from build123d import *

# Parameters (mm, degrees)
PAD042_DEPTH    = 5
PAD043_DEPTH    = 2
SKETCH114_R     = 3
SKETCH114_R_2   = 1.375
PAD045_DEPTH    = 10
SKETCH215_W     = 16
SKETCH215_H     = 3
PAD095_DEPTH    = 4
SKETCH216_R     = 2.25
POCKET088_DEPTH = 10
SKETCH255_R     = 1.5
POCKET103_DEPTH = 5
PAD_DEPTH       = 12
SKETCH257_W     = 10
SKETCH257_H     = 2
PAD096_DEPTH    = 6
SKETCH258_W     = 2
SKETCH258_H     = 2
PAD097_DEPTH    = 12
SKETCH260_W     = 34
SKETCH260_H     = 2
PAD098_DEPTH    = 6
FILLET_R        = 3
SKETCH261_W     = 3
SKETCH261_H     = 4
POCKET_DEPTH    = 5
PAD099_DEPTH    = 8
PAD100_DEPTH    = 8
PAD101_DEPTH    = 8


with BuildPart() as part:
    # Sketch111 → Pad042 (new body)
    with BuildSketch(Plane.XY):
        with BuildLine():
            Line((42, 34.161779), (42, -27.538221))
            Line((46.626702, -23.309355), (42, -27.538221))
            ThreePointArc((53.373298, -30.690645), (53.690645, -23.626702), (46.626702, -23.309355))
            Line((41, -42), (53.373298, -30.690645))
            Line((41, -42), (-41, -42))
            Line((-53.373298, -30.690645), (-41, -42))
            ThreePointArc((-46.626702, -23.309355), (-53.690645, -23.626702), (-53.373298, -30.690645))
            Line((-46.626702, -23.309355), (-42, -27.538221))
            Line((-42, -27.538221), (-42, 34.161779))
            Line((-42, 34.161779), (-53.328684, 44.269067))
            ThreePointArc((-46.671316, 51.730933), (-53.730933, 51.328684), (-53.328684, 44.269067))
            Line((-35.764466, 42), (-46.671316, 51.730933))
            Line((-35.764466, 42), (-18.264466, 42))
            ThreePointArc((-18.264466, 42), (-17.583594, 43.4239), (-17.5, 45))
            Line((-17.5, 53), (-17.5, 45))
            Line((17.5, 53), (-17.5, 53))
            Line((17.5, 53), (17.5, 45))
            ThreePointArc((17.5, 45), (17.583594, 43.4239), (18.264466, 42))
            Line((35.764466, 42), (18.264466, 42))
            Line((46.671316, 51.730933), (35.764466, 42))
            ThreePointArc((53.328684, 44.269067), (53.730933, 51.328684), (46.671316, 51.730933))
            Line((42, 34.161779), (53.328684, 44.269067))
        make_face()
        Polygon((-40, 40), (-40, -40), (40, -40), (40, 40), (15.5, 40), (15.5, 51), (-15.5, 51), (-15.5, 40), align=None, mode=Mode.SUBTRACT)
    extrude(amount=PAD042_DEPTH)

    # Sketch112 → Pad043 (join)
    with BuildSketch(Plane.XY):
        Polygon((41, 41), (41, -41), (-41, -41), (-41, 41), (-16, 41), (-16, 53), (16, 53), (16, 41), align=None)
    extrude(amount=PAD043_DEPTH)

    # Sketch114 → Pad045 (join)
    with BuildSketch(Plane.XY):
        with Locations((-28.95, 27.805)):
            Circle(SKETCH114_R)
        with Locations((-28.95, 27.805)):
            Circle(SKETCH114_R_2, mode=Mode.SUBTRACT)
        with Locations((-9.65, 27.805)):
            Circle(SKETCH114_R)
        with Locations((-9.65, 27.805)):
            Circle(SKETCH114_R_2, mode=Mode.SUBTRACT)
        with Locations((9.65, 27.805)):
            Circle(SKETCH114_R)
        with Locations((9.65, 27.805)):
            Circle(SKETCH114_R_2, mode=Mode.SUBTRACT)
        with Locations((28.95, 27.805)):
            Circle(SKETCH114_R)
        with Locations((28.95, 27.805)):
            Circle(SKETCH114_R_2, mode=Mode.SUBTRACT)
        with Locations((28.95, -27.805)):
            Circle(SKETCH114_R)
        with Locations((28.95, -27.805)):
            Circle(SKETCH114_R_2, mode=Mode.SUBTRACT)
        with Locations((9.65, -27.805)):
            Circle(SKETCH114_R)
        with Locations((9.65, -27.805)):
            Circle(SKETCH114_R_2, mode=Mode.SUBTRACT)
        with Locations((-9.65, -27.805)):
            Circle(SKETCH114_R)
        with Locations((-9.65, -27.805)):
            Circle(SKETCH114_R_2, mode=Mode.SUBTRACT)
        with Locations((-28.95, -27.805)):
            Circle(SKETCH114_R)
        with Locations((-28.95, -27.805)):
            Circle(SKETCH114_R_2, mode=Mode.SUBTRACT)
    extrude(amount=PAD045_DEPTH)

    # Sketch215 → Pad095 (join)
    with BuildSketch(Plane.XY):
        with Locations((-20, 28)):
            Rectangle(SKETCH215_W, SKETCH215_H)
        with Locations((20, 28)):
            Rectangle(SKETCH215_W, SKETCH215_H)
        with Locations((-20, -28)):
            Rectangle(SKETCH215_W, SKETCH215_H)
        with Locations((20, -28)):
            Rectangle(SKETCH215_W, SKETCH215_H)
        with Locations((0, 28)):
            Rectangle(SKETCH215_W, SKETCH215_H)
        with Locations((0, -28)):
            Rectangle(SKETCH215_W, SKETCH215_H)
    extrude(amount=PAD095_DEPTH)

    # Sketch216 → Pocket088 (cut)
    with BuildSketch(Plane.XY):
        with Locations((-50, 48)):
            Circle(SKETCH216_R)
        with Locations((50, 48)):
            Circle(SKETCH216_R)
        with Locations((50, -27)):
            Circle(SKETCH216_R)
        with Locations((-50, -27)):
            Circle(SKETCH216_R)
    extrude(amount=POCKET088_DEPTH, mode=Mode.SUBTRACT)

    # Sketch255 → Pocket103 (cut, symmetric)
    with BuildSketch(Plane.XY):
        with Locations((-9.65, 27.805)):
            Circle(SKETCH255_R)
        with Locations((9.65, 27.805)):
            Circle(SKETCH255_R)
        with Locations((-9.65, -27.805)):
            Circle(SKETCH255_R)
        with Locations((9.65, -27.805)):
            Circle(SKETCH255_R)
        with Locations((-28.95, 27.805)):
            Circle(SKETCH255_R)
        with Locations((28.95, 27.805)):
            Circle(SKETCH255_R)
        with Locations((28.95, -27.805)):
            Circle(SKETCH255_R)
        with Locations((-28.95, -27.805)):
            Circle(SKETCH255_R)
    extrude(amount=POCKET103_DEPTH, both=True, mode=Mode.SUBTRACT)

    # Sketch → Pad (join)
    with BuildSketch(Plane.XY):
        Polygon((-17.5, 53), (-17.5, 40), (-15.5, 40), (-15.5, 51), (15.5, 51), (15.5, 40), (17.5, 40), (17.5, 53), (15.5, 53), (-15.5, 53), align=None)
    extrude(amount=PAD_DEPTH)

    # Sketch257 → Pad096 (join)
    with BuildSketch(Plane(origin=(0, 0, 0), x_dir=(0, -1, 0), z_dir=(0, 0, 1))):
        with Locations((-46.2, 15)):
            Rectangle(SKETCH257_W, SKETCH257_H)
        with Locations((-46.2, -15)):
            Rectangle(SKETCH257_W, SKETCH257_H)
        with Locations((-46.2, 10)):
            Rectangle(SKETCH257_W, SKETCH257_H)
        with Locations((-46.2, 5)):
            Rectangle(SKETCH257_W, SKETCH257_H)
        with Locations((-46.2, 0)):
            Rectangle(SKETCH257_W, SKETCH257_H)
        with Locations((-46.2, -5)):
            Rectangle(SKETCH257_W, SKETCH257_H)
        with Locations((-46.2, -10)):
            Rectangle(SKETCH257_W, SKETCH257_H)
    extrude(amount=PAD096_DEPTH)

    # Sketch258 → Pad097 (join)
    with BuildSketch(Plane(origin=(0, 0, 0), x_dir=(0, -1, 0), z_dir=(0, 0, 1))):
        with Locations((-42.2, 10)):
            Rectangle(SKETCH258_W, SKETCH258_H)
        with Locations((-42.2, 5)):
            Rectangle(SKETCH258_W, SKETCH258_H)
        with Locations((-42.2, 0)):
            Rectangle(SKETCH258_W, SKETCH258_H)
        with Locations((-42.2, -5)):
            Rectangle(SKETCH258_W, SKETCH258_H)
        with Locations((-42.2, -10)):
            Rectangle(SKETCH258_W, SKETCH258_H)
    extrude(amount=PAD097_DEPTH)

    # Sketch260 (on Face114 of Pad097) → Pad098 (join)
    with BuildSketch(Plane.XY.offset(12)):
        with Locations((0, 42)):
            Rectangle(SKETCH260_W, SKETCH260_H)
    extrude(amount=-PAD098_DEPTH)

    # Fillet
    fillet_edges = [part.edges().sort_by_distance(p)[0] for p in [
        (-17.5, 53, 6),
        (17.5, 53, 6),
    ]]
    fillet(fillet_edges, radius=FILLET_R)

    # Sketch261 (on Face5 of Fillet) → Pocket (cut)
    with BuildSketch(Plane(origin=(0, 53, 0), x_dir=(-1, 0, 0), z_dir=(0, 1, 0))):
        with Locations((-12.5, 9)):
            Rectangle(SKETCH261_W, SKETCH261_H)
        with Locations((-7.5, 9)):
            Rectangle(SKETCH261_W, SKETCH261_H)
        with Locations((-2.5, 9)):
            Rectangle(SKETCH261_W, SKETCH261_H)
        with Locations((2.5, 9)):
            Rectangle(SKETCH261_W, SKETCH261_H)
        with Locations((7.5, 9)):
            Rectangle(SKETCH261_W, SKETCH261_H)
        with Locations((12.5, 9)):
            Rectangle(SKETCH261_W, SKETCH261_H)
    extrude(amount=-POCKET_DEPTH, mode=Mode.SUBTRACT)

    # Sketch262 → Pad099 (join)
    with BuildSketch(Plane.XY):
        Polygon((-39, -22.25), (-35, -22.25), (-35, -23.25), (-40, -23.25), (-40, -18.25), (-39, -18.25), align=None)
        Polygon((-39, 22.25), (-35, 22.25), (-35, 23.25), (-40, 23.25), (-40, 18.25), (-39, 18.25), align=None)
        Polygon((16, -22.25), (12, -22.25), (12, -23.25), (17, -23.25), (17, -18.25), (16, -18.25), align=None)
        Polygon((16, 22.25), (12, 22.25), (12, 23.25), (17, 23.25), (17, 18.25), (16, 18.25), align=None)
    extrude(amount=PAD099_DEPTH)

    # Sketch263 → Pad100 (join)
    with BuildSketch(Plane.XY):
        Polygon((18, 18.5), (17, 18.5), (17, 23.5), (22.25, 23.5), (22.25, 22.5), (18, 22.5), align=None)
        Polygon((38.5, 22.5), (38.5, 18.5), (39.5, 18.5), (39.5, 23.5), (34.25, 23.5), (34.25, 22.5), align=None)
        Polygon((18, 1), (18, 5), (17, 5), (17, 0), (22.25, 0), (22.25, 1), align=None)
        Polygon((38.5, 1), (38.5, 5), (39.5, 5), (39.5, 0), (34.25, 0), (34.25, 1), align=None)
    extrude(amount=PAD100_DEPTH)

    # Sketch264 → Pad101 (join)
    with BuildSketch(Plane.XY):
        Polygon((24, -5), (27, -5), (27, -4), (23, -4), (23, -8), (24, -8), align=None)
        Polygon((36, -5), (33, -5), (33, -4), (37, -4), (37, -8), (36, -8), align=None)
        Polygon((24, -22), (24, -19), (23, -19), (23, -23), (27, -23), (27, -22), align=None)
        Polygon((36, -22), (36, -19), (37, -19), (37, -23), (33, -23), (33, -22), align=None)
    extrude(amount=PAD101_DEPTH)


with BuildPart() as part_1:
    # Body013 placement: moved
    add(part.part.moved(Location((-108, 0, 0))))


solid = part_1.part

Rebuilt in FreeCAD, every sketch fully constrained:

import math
import FreeCAD as App
import Part
import Sketcher


def edges_at(feature, points):
    """Names of the edges that pass closest to the given points."""
    edges = feature.Shape.Edges
    near = lambda p: min(range(len(edges)), key=lambda i: edges[i].distToShape(Part.Vertex(*p))[0])
    return sorted({f"Edge{near(p) + 1}" for p in points})


def add_polygon(sketch, points):
    """Adds a closed chain of lines whose ends are joined by coincident constraints."""
    first, n = sketch.GeometryCount, len(points)
    for a, b in zip(points, points[1:] + points[:1]):
        sketch.addGeometry(Part.LineSegment(App.Vector(*a, 0), App.Vector(*b, 0)), False)
    for i in range(n):
        sketch.addConstraint(Sketcher.Constraint("Coincident", first + i, 2, first + (i + 1) % n, 1))

doc = App.newDocument("Part")
body = doc.addObject("PartDesign::Body", "Body")

# Sketch on XY plane
sketch1 = doc.addObject("Sketcher::SketchObject", "Sketch")
body.addObject(sketch1)
sketch1.AttachmentSupport = (doc.XY_Plane, [""])
sketch1.MapMode = "FlatFace"
sketch1.addGeometry(Part.LineSegment(App.Vector(42, -27.5, 0), App.Vector(42, 34.2, 0)), False)  # 0
sketch1.addGeometry(Part.LineSegment(App.Vector(42, 34.2, 0), App.Vector(53.3, 44.3, 0)), False)  # 1
sketch1.addGeometry(Part.ArcOfCircle(Part.Circle(App.Vector(50, 48, 0), App.Vector(0, 0, 1), 5), math.radians(-48), math.radians(132)), False)  # 2
sketch1.addGeometry(Part.LineSegment(App.Vector(46.7, 51.7, 0), App.Vector(35.8, 42, 0)), False)  # 3
sketch1.addGeometry(Part.LineSegment(App.Vector(35.8, 42, 0), App.Vector(18.3, 42, 0)), False)  # 4
sketch1.addGeometry(Part.ArcOfCircle(Part.Circle(App.Vector(21.5, 44.4, 0), App.Vector(0, 0, 1), 4), math.radians(172), math.radians(217)), False)  # 5
sketch1.addGeometry(Part.LineSegment(App.Vector(17.5, 45, 0), App.Vector(17.5, 53, 0)), False)  # 6
sketch1.addGeometry(Part.LineSegment(App.Vector(17.5, 53, 0), App.Vector(-17.5, 53, 0)), False)  # 7
sketch1.addGeometry(Part.LineSegment(App.Vector(-17.5, 53, 0), App.Vector(-17.5, 45, 0)), False)  # 8
sketch1.addGeometry(Part.ArcOfCircle(Part.Circle(App.Vector(-21.5, 44.4, 0), App.Vector(0, 0, 1), 4), math.radians(-37), math.radians(8)), False)  # 9
sketch1.addGeometry(Part.LineSegment(App.Vector(-18.3, 42, 0), App.Vector(-35.8, 42, 0)), False)  # 10
sketch1.addGeometry(Part.LineSegment(App.Vector(-35.8, 42, 0), App.Vector(-46.7, 51.7, 0)), False)  # 11
sketch1.addGeometry(Part.ArcOfCircle(Part.Circle(App.Vector(-50, 48, 0), App.Vector(0, 0, 1), 5), math.radians(48), math.radians(228)), False)  # 12
sketch1.addGeometry(Part.LineSegment(App.Vector(-53.3, 44.3, 0), App.Vector(-42, 34.2, 0)), False)  # 13
sketch1.addGeometry(Part.LineSegment(App.Vector(-42, 34.2, 0), App.Vector(-42, -27.5, 0)), False)  # 14
sketch1.addGeometry(Part.LineSegment(App.Vector(-42, -27.5, 0), App.Vector(-46.6, -23.3, 0)), False)  # 15
sketch1.addGeometry(Part.ArcOfCircle(Part.Circle(App.Vector(-50, -27, 0), App.Vector(0, 0, 1), 5), math.radians(48), math.radians(228)), False)  # 16
sketch1.addGeometry(Part.LineSegment(App.Vector(-53.4, -30.7, 0), App.Vector(-41, -42, 0)), False)  # 17
sketch1.addGeometry(Part.LineSegment(App.Vector(-41, -42, 0), App.Vector(41, -42, 0)), False)  # 18
sketch1.addGeometry(Part.LineSegment(App.Vector(41, -42, 0), App.Vector(53.4, -30.7, 0)), False)  # 19
sketch1.addGeometry(Part.ArcOfCircle(Part.Circle(App.Vector(50, -27, 0), App.Vector(0, 0, 1), 5), math.radians(-48), math.radians(132)), False)  # 20
sketch1.addGeometry(Part.LineSegment(App.Vector(46.6, -23.3, 0), App.Vector(42, -27.5, 0)), False)  # 21
add_polygon(sketch1, [(-40, 40), (-15.5, 40), (-15.5, 51), (15.5, 51), (15.5, 40), (40, 40), (40, -40), (-40, -40)])  # lines 22-29
sketch1.addConstraint([
    Sketcher.Constraint("Coincident", 0, 2, 1, 1),
    Sketcher.Constraint("Tangent", 1, 2, 2, 1),
    Sketcher.Constraint("Tangent", 2, 2, 3, 1),
    Sketcher.Constraint("Coincident", 3, 2, 4, 1),
    Sketcher.Constraint("Coincident", 4, 2, 5, 2),
    Sketcher.Constraint("Coincident", 5, 1, 6, 1),
    Sketcher.Constraint("Coincident", 6, 2, 7, 1),
    Sketcher.Constraint("Coincident", 7, 2, 8, 1),
    Sketcher.Constraint("Coincident", 8, 2, 9, 2),
    Sketcher.Constraint("Coincident", 9, 1, 10, 1),
    Sketcher.Constraint("Coincident", 10, 2, 11, 1),
    Sketcher.Constraint("Tangent", 11, 2, 12, 1),
    Sketcher.Constraint("Tangent", 12, 2, 13, 1),
    Sketcher.Constraint("Coincident", 13, 2, 14, 1),
    Sketcher.Constraint("Coincident", 14, 2, 15, 1),
    Sketcher.Constraint("Tangent", 15, 2, 16, 1),
    Sketcher.Constraint("Tangent", 16, 2, 17, 1),
    Sketcher.Constraint("Coincident", 17, 2, 18, 1),
    Sketcher.Constraint("Coincident", 18, 2, 19, 1),
    Sketcher.Constraint("Tangent", 19, 2, 20, 1),
    Sketcher.Constraint("Tangent", 20, 2, 21, 1),
    Sketcher.Constraint("Coincident", 21, 2, 0, 1),
    Sketcher.Constraint("Vertical", 0),
    Sketcher.Constraint("Horizontal", 4),
    Sketcher.Constraint("Vertical", 6),
    Sketcher.Constraint("Horizontal", 7),
    Sketcher.Constraint("Vertical", 8),
    Sketcher.Constraint("Horizontal", 10),
    Sketcher.Constraint("Vertical", 14),
    Sketcher.Constraint("Horizontal", 18),
    Sketcher.Constraint("Horizontal", 22),
    Sketcher.Constraint("Vertical", 23),
    Sketcher.Constraint("Horizontal", 24),
    Sketcher.Constraint("Vertical", 25),
    Sketcher.Constraint("Horizontal", 26),
    Sketcher.Constraint("Vertical", 27),
    Sketcher.Constraint("Horizontal", 28),
    Sketcher.Constraint("Vertical", 29),
    Sketcher.Constraint("Equal", 5, 9),
    Sketcher.Constraint("Equal", 2, 12),
    Sketcher.Constraint("Equal", 12, 16),
    Sketcher.Constraint("Equal", 16, 20),
    Sketcher.Constraint("Symmetric", 26, 2, 28, 2, -1, 1),
    Sketcher.Constraint("Symmetric", 5, 3, 9, 3, -2),
    Sketcher.Constraint("Symmetric", 2, 3, 12, 3, -2),
    Sketcher.Constraint("Symmetric", 16, 3, 20, 3, -2),
    Sketcher.Constraint("Symmetric", 3, 2, 10, 2, -2),
    Sketcher.Constraint("Symmetric", 0, 2, 13, 2, -2),
    Sketcher.Constraint("Symmetric", 22, 2, 25, 2, -2),
    Sketcher.Constraint("Parallel", 1, 3),
    Sketcher.Constraint("Parallel", 15, 17),
    Sketcher.Constraint("Parallel", 19, 21),
    Sketcher.Constraint("Horizontal", 5, 1, 8, 2),
    Sketcher.Constraint("Horizontal", 16, 2, 19, 2),
    Sketcher.Constraint("Vertical", 12, 3, 16, 3),
    Sketcher.Constraint("Equal", 28, 27),
    Sketcher.Constraint("Radius", 2, 5.0),
    Sketcher.Constraint("DistanceX", 7, 2, 7, 1, 35.0),
    Sketcher.Constraint("DistanceX", 18, 1, 18, 2, 82.0),
    Sketcher.Constraint("DistanceX", 24, 1, 24, 2, 31.0),
    Sketcher.Constraint("DistanceX", 28, 2, 28, 1, 80.0),
    Sketcher.Constraint("DistanceY", 6, 1, 6, 2, 8.0),
    Sketcher.Constraint("DistanceY", 23, 1, 23, 2, 11.0),
    Sketcher.Constraint("DistanceX", 4, 2, 4, 1, 17.5),
    Sketcher.Constraint("DistanceY", 0, 1, 0, 2, 61.7),
    Sketcher.Constraint("DistanceX", -1, 1, 2, 3, 50.0),
    Sketcher.Constraint("DistanceY", -1, 1, 2, 3, 48.0),
    Sketcher.Constraint("DistanceY", 16, 3, -1, 1, 27.0),
    Sketcher.Constraint("DistanceX", -1, 1, 0, 2, 42.0),
    Sketcher.Constraint("DistanceY", -1, 1, 3, 2, 42.0),
    Sketcher.Constraint("DistanceY", -1, 1, 5, 1, 45.0),
    Sketcher.Constraint("DistanceY", 17, 2, -1, 1, 42.0),
    Sketcher.Constraint("Radius", 5, 4.041564),
])
pad1 = doc.addObject("PartDesign::Pad", "Pad")
body.addObject(pad1)
pad1.Profile = sketch1
pad1.Length = 5

# Sketch on XY plane
sketch2 = doc.addObject("Sketcher::SketchObject", "Sketch001")
body.addObject(sketch2)
sketch2.AttachmentSupport = (doc.XY_Plane, [""])
sketch2.MapMode = "FlatFace"
add_polygon(sketch2, [(41, -41), (41, 41), (16, 41), (16, 53), (-16, 53), (-16, 41), (-41, 41), (-41, -41)])  # lines 0-7
sketch2.addConstraint([
    Sketcher.Constraint("Vertical", 0),
    Sketcher.Constraint("Horizontal", 1),
    Sketcher.Constraint("Vertical", 2),
    Sketcher.Constraint("Horizontal", 3),
    Sketcher.Constraint("Vertical", 4),
    Sketcher.Constraint("Horizontal", 5),
    Sketcher.Constraint("Vertical", 6),
    Sketcher.Constraint("Horizontal", 7),
    Sketcher.Constraint("Symmetric", 0, 2, 6, 2, -1, 1),
    Sketcher.Constraint("Symmetric", 1, 2, 4, 2, -2),
    Sketcher.Constraint("Equal", 7, 0),
    Sketcher.Constraint("DistanceX", 1, 2, 1, 1, 25.0),
    Sketcher.Constraint("DistanceX", 3, 2, 3, 1, 32.0),
    Sketcher.Constraint("DistanceY", 2, 1, 2, 2, 12.0),
])
pad2 = doc.addObject("PartDesign::Pad", "Pad001")
body.addObject(pad2)
pad2.Profile = sketch2
pad2.Length = 2

# Sketch on XY plane
sketch3 = doc.addObject("Sketcher::SketchObject", "Sketch002")
body.addObject(sketch3)
sketch3.AttachmentSupport = (doc.XY_Plane, [""])
sketch3.MapMode = "FlatFace"
sketch3.addGeometry([
    Part.Circle(App.Vector(-28.9, 27.8, 0), App.Vector(0, 0, 1), 3),  # 0
    Part.Circle(App.Vector(-28.9, 27.8, 0), App.Vector(0, 0, 1), 1.4),  # 1
    Part.Circle(App.Vector(-9.7, 27.8, 0), App.Vector(0, 0, 1), 3),  # 2
    Part.Circle(App.Vector(-9.7, 27.8, 0), App.Vector(0, 0, 1), 1.4),  # 3
    Part.Circle(App.Vector(9.7, 27.8, 0), App.Vector(0, 0, 1), 3),  # 4
    Part.Circle(App.Vector(9.7, 27.8, 0), App.Vector(0, 0, 1), 1.4),  # 5
    Part.Circle(App.Vector(28.9, 27.8, 0), App.Vector(0, 0, 1), 3),  # 6
    Part.Circle(App.Vector(28.9, 27.8, 0), App.Vector(0, 0, 1), 1.4),  # 7
    Part.Circle(App.Vector(28.9, -27.8, 0), App.Vector(0, 0, 1), 3),  # 8
    Part.Circle(App.Vector(28.9, -27.8, 0), App.Vector(0, 0, 1), 1.4),  # 9
    Part.Circle(App.Vector(9.7, -27.8, 0), App.Vector(0, 0, 1), 3),  # 10
    Part.Circle(App.Vector(9.7, -27.8, 0), App.Vector(0, 0, 1), 1.4),  # 11
    Part.Circle(App.Vector(-9.7, -27.8, 0), App.Vector(0, 0, 1), 3),  # 12
    Part.Circle(App.Vector(-9.7, -27.8, 0), App.Vector(0, 0, 1), 1.4),  # 13
    Part.Circle(App.Vector(-28.9, -27.8, 0), App.Vector(0, 0, 1), 3),  # 14
    Part.Circle(App.Vector(-28.9, -27.8, 0), App.Vector(0, 0, 1), 1.4),  # 15
], False)
sketch3.addConstraint([
    Sketcher.Constraint("Coincident", 1, 3, 0, 3),
    Sketcher.Constraint("Coincident", 3, 3, 2, 3),
    Sketcher.Constraint("Coincident", 5, 3, 4, 3),
    Sketcher.Constraint("Coincident", 7, 3, 6, 3),
    Sketcher.Constraint("Coincident", 9, 3, 8, 3),
    Sketcher.Constraint("Coincident", 11, 3, 10, 3),
    Sketcher.Constraint("Coincident", 13, 3, 12, 3),
    Sketcher.Constraint("Coincident", 15, 3, 14, 3),
    Sketcher.Constraint("Equal", 0, 2),
    Sketcher.Constraint("Equal", 1, 3),
    Sketcher.Constraint("Equal", 2, 4),
    Sketcher.Constraint("Equal", 3, 5),
    Sketcher.Constraint("Equal", 4, 6),
    Sketcher.Constraint("Equal", 5, 7),
    Sketcher.Constraint("Equal", 6, 8),
    Sketcher.Constraint("Equal", 7, 9),
    Sketcher.Constraint("Equal", 8, 10),
    Sketcher.Constraint("Equal", 9, 11),
    Sketcher.Constraint("Equal", 10, 12),
    Sketcher.Constraint("Equal", 11, 13),
    Sketcher.Constraint("Equal", 12, 14),
    Sketcher.Constraint("Equal", 13, 15),
    Sketcher.Constraint("Symmetric", 0, 3, 8, 3, -1, 1),
    Sketcher.Constraint("Symmetric", 2, 3, 10, 3, -1, 1),
    Sketcher.Constraint("Symmetric", 4, 3, 12, 3, -1, 1),
    Sketcher.Constraint("Symmetric", 6, 3, 14, 3, -1, 1),
    Sketcher.Constraint("Symmetric", 2, 3, 4, 3, -2),
    Sketcher.Constraint("Symmetric", 0, 3, 6, 3, -2),
    Sketcher.Constraint("Horizontal", 1, 3, 2, 3),
    Sketcher.Constraint("Diameter", 0, 6.0),
    Sketcher.Constraint("Diameter", 1, 2.75),
    Sketcher.Constraint("DistanceX", 0, 3, 2, 3, 19.3),
    Sketcher.Constraint("DistanceX", 2, 3, 4, 3, 19.3),
    Sketcher.Constraint("DistanceY", 8, 3, 6, 3, 55.61),
])
pad3 = doc.addObject("PartDesign::Pad", "Pad002")
body.addObject(pad3)
pad3.Profile = sketch3
pad3.Length = 10

# Sketch on XY plane
sketch4 = doc.addObject("Sketcher::SketchObject", "Sketch003")
body.addObject(sketch4)
sketch4.AttachmentSupport = (doc.XY_Plane, [""])
sketch4.MapMode = "FlatFace"
add_polygon(sketch4, [(-28, 29.5), (-28, 26.5), (-12, 26.5), (-12, 29.5)])  # lines 0-3
add_polygon(sketch4, [(12, 29.5), (12, 26.5), (28, 26.5), (28, 29.5)])  # lines 4-7
add_polygon(sketch4, [(-28, -26.5), (-28, -29.5), (-12, -29.5), (-12, -26.5)])  # lines 8-11
add_polygon(sketch4, [(12, -26.5), (12, -29.5), (28, -29.5), (28, -26.5)])  # lines 12-15
add_polygon(sketch4, [(-8, 29.5), (-8, 26.5), (8, 26.5), (8, 29.5)])  # lines 16-19
add_polygon(sketch4, [(-8, -26.5), (-8, -29.5), (8, -29.5), (8, -26.5)])  # lines 20-23
sketch4.addConstraint([
    Sketcher.Constraint("Vertical", 0),
    Sketcher.Constraint("Horizontal", 1),
    Sketcher.Constraint("Vertical", 2),
    Sketcher.Constraint("Horizontal", 3),
    Sketcher.Constraint("Vertical", 4),
    Sketcher.Constraint("Horizontal", 5),
    Sketcher.Constraint("Vertical", 6),
    Sketcher.Constraint("Horizontal", 7),
    Sketcher.Constraint("Vertical", 8),
    Sketcher.Constraint("Horizontal", 9),
    Sketcher.Constraint("Vertical", 10),
    Sketcher.Constraint("Horizontal", 11),
    Sketcher.Constraint("Vertical", 12),
    Sketcher.Constraint("Horizontal", 13),
    Sketcher.Constraint("Vertical", 14),
    Sketcher.Constraint("Horizontal", 15),
    Sketcher.Constraint("Vertical", 16),
    Sketcher.Constraint("Horizontal", 17),
    Sketcher.Constraint("Vertical", 18),
    Sketcher.Constraint("Horizontal", 19),
    Sketcher.Constraint("Vertical", 20),
    Sketcher.Constraint("Horizontal", 21),
    Sketcher.Constraint("Vertical", 22),
    Sketcher.Constraint("Horizontal", 23),
    Sketcher.Constraint("Symmetric", 6, 2, 8, 2, -1, 1),
    Sketcher.Constraint("Symmetric", 4, 2, 10, 2, -1, 1),
    Sketcher.Constraint("Symmetric", 2, 2, 12, 2, -1, 1),
    Sketcher.Constraint("Symmetric", 0, 2, 14, 2, -1, 1),
    Sketcher.Constraint("Symmetric", 18, 2, 20, 2, -1, 1),
    Sketcher.Constraint("Symmetric", 16, 2, 22, 2, -1, 1),
    Sketcher.Constraint("Symmetric", 1, 2, 4, 2, -2),
    Sketcher.Constraint("Symmetric", 3, 2, 6, 2, -2),
    Sketcher.Constraint("Horizontal", 5, 2, 16, 2),
    Sketcher.Constraint("Horizontal", 7, 2, 18, 2),
    Sketcher.Constraint("Vertical", 19, 2, 20, 2),
    Sketcher.Constraint("Equal", 15, 17),
    Sketcher.Constraint("DistanceX", 1, 1, 1, 2, 16.0),
    Sketcher.Constraint("DistanceY", 0, 2, 0, 1, 3.0),
    Sketcher.Constraint("DistanceX", 0, 2, -1, 1, 28.0),
    Sketcher.Constraint("DistanceY", 8, 2, 0, 2, 56.0),
])
pad4 = doc.addObject("PartDesign::Pad", "Pad003")
body.addObject(pad4)
pad4.Profile = sketch4
pad4.Length = 4

# Sketch on XY plane
sketch5 = doc.addObject("Sketcher::SketchObject", "Sketch004")
body.addObject(sketch5)
sketch5.AttachmentSupport = (doc.XY_Plane, [""])
sketch5.MapMode = "FlatFace"
sketch5.addGeometry([
    Part.Circle(App.Vector(-50, 48, 0), App.Vector(0, 0, 1), 2.2),
    Part.Circle(App.Vector(50, 48, 0), App.Vector(0, 0, 1), 2.2),
    Part.Circle(App.Vector(50, -27, 0), App.Vector(0, 0, 1), 2.2),
    Part.Circle(App.Vector(-50, -27, 0), App.Vector(0, 0, 1), 2.2),
], False)
sketch5.addConstraint([
    Sketcher.Constraint("Equal", 0, 1),
    Sketcher.Constraint("Equal", 1, 2),
    Sketcher.Constraint("Equal", 2, 3),
    Sketcher.Constraint("Symmetric", 0, 3, 1, 3, -2),
    Sketcher.Constraint("Symmetric", 2, 3, 3, 3, -2),
    Sketcher.Constraint("Vertical", 1, 3, 2, 3),
    Sketcher.Constraint("Diameter", 0, 4.5),
    Sketcher.Constraint("DistanceX", 0, 3, -1, 1, 50.0),
    Sketcher.Constraint("DistanceY", -1, 1, 0, 3, 48.0),
    Sketcher.Constraint("DistanceY", 2, 3, -1, 1, 27.0),
])
pocket1 = doc.addObject("PartDesign::Pocket", "Pocket")
body.addObject(pocket1)
pocket1.Profile = sketch5
pocket1.Length = 10
pocket1.Reversed = True

# Sketch on XY plane
sketch6 = doc.addObject("Sketcher::SketchObject", "Sketch005")
body.addObject(sketch6)
sketch6.AttachmentSupport = (doc.XY_Plane, [""])
sketch6.MapMode = "FlatFace"
sketch6.addGeometry([
    Part.Circle(App.Vector(-9.7, 27.8, 0), App.Vector(0, 0, 1), 1.5),  # 0
    Part.Circle(App.Vector(9.7, 27.8, 0), App.Vector(0, 0, 1), 1.5),  # 1
    Part.Circle(App.Vector(-9.7, -27.8, 0), App.Vector(0, 0, 1), 1.5),  # 2
    Part.Circle(App.Vector(9.7, -27.8, 0), App.Vector(0, 0, 1), 1.5),  # 3
    Part.Circle(App.Vector(-28.9, 27.8, 0), App.Vector(0, 0, 1), 1.5),  # 4
    Part.Circle(App.Vector(28.9, 27.8, 0), App.Vector(0, 0, 1), 1.5),  # 5
    Part.Circle(App.Vector(28.9, -27.8, 0), App.Vector(0, 0, 1), 1.5),  # 6
    Part.Circle(App.Vector(-28.9, -27.8, 0), App.Vector(0, 0, 1), 1.5),  # 7
], False)
sketch6.addConstraint([
    Sketcher.Constraint("Equal", 0, 1),
    Sketcher.Constraint("Equal", 1, 2),
    Sketcher.Constraint("Equal", 2, 3),
    Sketcher.Constraint("Equal", 3, 4),
    Sketcher.Constraint("Equal", 4, 5),
    Sketcher.Constraint("Equal", 5, 6),
    Sketcher.Constraint("Equal", 6, 7),
    Sketcher.Constraint("Symmetric", 1, 3, 2, 3, -1, 1),
    Sketcher.Constraint("Symmetric", 0, 3, 3, 3, -1, 1),
    Sketcher.Constraint("Symmetric", 4, 3, 6, 3, -1, 1),
    Sketcher.Constraint("Symmetric", 5, 3, 7, 3, -1, 1),
    Sketcher.Constraint("Symmetric", 0, 3, 1, 3, -2),
    Sketcher.Constraint("Symmetric", 4, 3, 5, 3, -2),
    Sketcher.Constraint("Horizontal", 1, 3, 4, 3),
    Sketcher.Constraint("Diameter", 0, 3.0),
    Sketcher.Constraint("DistanceX", 0, 3, 1, 3, 19.3),
    Sketcher.Constraint("DistanceX", 4, 3, 0, 3, 19.3),
    Sketcher.Constraint("DistanceY", 2, 3, 0, 3, 55.61),
])
pocket2 = doc.addObject("PartDesign::Pocket", "Pocket001")
body.addObject(pocket2)
pocket2.Profile = sketch6
pocket2.Length = 10
pocket2.Midplane = True

# Sketch on XY plane
sketch7 = doc.addObject("Sketcher::SketchObject", "Sketch006")
body.addObject(sketch7)
sketch7.AttachmentSupport = (doc.XY_Plane, [""])
sketch7.MapMode = "FlatFace"
add_polygon(sketch7, [(-17.5, 53), (-17.5, 40), (-15.5, 40), (-15.5, 51), (15.5, 51), (15.5, 40), (17.5, 40), (17.5, 53)])  # lines 0-7
sketch7.addConstraint([
    Sketcher.Constraint("Vertical", 0),
    Sketcher.Constraint("Horizontal", 1),
    Sketcher.Constraint("Vertical", 2),
    Sketcher.Constraint("Horizontal", 3),
    Sketcher.Constraint("Vertical", 4),
    Sketcher.Constraint("Horizontal", 5),
    Sketcher.Constraint("Vertical", 6),
    Sketcher.Constraint("Horizontal", 7),
    Sketcher.Constraint("Symmetric", 1, 2, 4, 2, -2),
    Sketcher.Constraint("Equal", 1, 5),
    Sketcher.Constraint("DistanceX", 1, 1, 1, 2, 2.0),
    Sketcher.Constraint("DistanceX", 3, 1, 3, 2, 31.0),
    Sketcher.Constraint("DistanceY", 0, 2, 0, 1, 13.0),
    Sketcher.Constraint("DistanceY", 2, 1, 2, 2, 11.0),
    Sketcher.Constraint("DistanceY", -1, 1, 0, 2, 40.0),
])
pad5 = doc.addObject("PartDesign::Pad", "Pad004")
body.addObject(pad5)
pad5.Profile = sketch7
pad5.Length = 12

# Sketch on XY plane
sketch8 = doc.addObject("Sketcher::SketchObject", "Sketch007")
body.addObject(sketch8)
sketch8.AttachmentSupport = (doc.XY_Plane, [""])
sketch8.MapMode = "FlatFace"
add_polygon(sketch8, [(16, 51.2), (14, 51.2), (14, 41.2), (16, 41.2)])  # lines 0-3
add_polygon(sketch8, [(-14, 51.2), (-16, 51.2), (-16, 41.2), (-14, 41.2)])  # lines 4-7
add_polygon(sketch8, [(11, 51.2), (9, 51.2), (9, 41.2), (11, 41.2)])  # lines 8-11
add_polygon(sketch8, [(6, 51.2), (4, 51.2), (4, 41.2), (6, 41.2)])  # lines 12-15
add_polygon(sketch8, [(1, 51.2), (-1, 51.2), (-1, 41.2), (1, 41.2)])  # lines 16-19
add_polygon(sketch8, [(-4, 51.2), (-6, 51.2), (-6, 41.2), (-4, 41.2)])  # lines 20-23
add_polygon(sketch8, [(-9, 51.2), (-11, 51.2), (-11, 41.2), (-9, 41.2)])  # lines 24-27
sketch8.addConstraint([
    Sketcher.Constraint("Horizontal", 0),
    Sketcher.Constraint("Vertical", 1),
    Sketcher.Constraint("Horizontal", 2),
    Sketcher.Constraint("Vertical", 3),
    Sketcher.Constraint("Horizontal", 4),
    Sketcher.Constraint("Vertical", 5),
    Sketcher.Constraint("Horizontal", 6),
    Sketcher.Constraint("Vertical", 7),
    Sketcher.Constraint("Horizontal", 8),
    Sketcher.Constraint("Vertical", 9),
    Sketcher.Constraint("Horizontal", 10),
    Sketcher.Constraint("Vertical", 11),
    Sketcher.Constraint("Horizontal", 12),
    Sketcher.Constraint("Vertical", 13),
    Sketcher.Constraint("Horizontal", 14),
    Sketcher.Constraint("Vertical", 15),
    Sketcher.Constraint("Horizontal", 16),
    Sketcher.Constraint("Vertical", 17),
    Sketcher.Constraint("Horizontal", 18),
    Sketcher.Constraint("Vertical", 19),
    Sketcher.Constraint("Horizontal", 20),
    Sketcher.Constraint("Vertical", 21),
    Sketcher.Constraint("Horizontal", 22),
    Sketcher.Constraint("Vertical", 23),
    Sketcher.Constraint("Horizontal", 24),
    Sketcher.Constraint("Vertical", 25),
    Sketcher.Constraint("Horizontal", 26),
    Sketcher.Constraint("Vertical", 27),
    Sketcher.Constraint("Symmetric", 3, 2, 4, 2, -2),
    Sketcher.Constraint("Symmetric", 1, 2, 6, 2, -2),
    Sketcher.Constraint("Symmetric", 15, 2, 20, 2, -2),
    Sketcher.Constraint("Symmetric", 13, 2, 22, 2, -2),
    Sketcher.Constraint("Symmetric", 11, 2, 24, 2, -2),
    Sketcher.Constraint("Symmetric", 9, 2, 26, 2, -2),
    Sketcher.Constraint("Horizontal", 7, 2, 8, 2),
    Sketcher.Constraint("Horizontal", 6, 2, 9, 2),
    Sketcher.Constraint("Horizontal", 11, 2, 12, 2),
    Sketcher.Constraint("Horizontal", 10, 2, 13, 2),
    Sketcher.Constraint("Horizontal", 15, 2, 16, 2),
    Sketcher.Constraint("Horizontal", 14, 2, 17, 2),
    Sketcher.Constraint("Equal", 6, 8),
    Sketcher.Constraint("Equal", 10, 12),
    Sketcher.Constraint("Equal", 14, 16),
    Sketcher.Constraint("DistanceX", 0, 2, 0, 1, 2.0),
    Sketcher.Constraint("DistanceY", 1, 2, 1, 1, 10.0),
    Sketcher.Constraint("DistanceX", -1, 1, 0, 2, 14.0),
    Sketcher.Constraint("DistanceX", -1, 1, 8, 2, 9.0),
    Sketcher.Constraint("DistanceX", -1, 1, 12, 2, 4.0),
    Sketcher.Constraint("DistanceX", 16, 2, -1, 1, 1.0),
    Sketcher.Constraint("DistanceY", -1, 1, 0, 2, 51.2),
])
pad6 = doc.addObject("PartDesign::Pad", "Pad005")
body.addObject(pad6)
pad6.Profile = sketch8
pad6.Length = 6

# Sketch on XY plane
sketch9 = doc.addObject("Sketcher::SketchObject", "Sketch008")
body.addObject(sketch9)
sketch9.AttachmentSupport = (doc.XY_Plane, [""])
sketch9.MapMode = "FlatFace"
add_polygon(sketch9, [(11, 43.2), (9, 43.2), (9, 41.2), (11, 41.2)])  # lines 0-3
add_polygon(sketch9, [(6, 43.2), (4, 43.2), (4, 41.2), (6, 41.2)])  # lines 4-7
add_polygon(sketch9, [(1, 43.2), (-1, 43.2), (-1, 41.2), (1, 41.2)])  # lines 8-11
add_polygon(sketch9, [(-4, 43.2), (-6, 43.2), (-6, 41.2), (-4, 41.2)])  # lines 12-15
add_polygon(sketch9, [(-9, 43.2), (-11, 43.2), (-11, 41.2), (-9, 41.2)])  # lines 16-19
sketch9.addConstraint([
    Sketcher.Constraint("Horizontal", 0),
    Sketcher.Constraint("Vertical", 1),
    Sketcher.Constraint("Horizontal", 2),
    Sketcher.Constraint("Vertical", 3),
    Sketcher.Constraint("Horizontal", 4),
    Sketcher.Constraint("Vertical", 5),
    Sketcher.Constraint("Horizontal", 6),
    Sketcher.Constraint("Vertical", 7),
    Sketcher.Constraint("Horizontal", 8),
    Sketcher.Constraint("Vertical", 9),
    Sketcher.Constraint("Horizontal", 10),
    Sketcher.Constraint("Vertical", 11),
    Sketcher.Constraint("Horizontal", 12),
    Sketcher.Constraint("Vertical", 13),
    Sketcher.Constraint("Horizontal", 14),
    Sketcher.Constraint("Vertical", 15),
    Sketcher.Constraint("Horizontal", 16),
    Sketcher.Constraint("Vertical", 17),
    Sketcher.Constraint("Horizontal", 18),
    Sketcher.Constraint("Vertical", 19),
    Sketcher.Constraint("Symmetric", 7, 2, 12, 2, -2),
    Sketcher.Constraint("Symmetric", 5, 2, 14, 2, -2),
    Sketcher.Constraint("Symmetric", 3, 2, 16, 2, -2),
    Sketcher.Constraint("Symmetric", 1, 2, 18, 2, -2),
    Sketcher.Constraint("Horizontal", 3, 2, 4, 2),
    Sketcher.Constraint("Horizontal", 2, 2, 5, 2),
    Sketcher.Constraint("Horizontal", 7, 2, 8, 2),
    Sketcher.Constraint("Horizontal", 6, 2, 9, 2),
    Sketcher.Constraint("Equal", 2, 4),
    Sketcher.Constraint("Equal", 6, 8),
    Sketcher.Constraint("Equal", 18, 1),
    Sketcher.Constraint("DistanceX", 0, 2, 0, 1, 2.0),
    Sketcher.Constraint("DistanceX", -1, 1, 0, 2, 9.0),
    Sketcher.Constraint("DistanceX", -1, 1, 4, 2, 4.0),
    Sketcher.Constraint("DistanceX", 8, 2, -1, 1, 1.0),
    Sketcher.Constraint("DistanceY", -1, 1, 0, 2, 43.2),
])
pad7 = doc.addObject("PartDesign::Pad", "Pad006")
body.addObject(pad7)
pad7.Profile = sketch9
pad7.Length = 12

# Sketch on XY plane
sketch10 = doc.addObject("Sketcher::SketchObject", "Sketch009")
body.addObject(sketch10)
sketch10.AttachmentSupport = (doc.XY_Plane, [""])
sketch10.MapMode = "FlatFace"
sketch10.AttachmentOffset = App.Placement(App.Vector(0, 0, 12), App.Rotation())
add_polygon(sketch10, [(-17, 43), (-17, 41), (17, 41), (17, 43)])  # lines 0-3
sketch10.addConstraint([
    Sketcher.Constraint("Vertical", 0),
    Sketcher.Constraint("Horizontal", 1),
    Sketcher.Constraint("Vertical", 2),
    Sketcher.Constraint("Horizontal", 3),
    Sketcher.Constraint("DistanceX", 1, 1, 1, 2, 34.0),
    Sketcher.Constraint("DistanceY", 0, 2, 0, 1, 2.0),
    Sketcher.Constraint("DistanceX", 0, 2, -1, 1, 17.0),
    Sketcher.Constraint("DistanceY", -1, 1, 0, 2, 41.0),
])
pad8 = doc.addObject("PartDesign::Pad", "Pad007")
body.addObject(pad8)
pad8.Profile = sketch10
pad8.Length = 6
pad8.Reversed = True
doc.recompute()

fillet = doc.addObject("PartDesign::Fillet", "Fillet")
body.addObject(fillet)
fillet.Base = (pad8, edges_at(pad8, [(-17.5, 53, 6), (17.5, 53, 6)]))
fillet.Radius = 3

# Sketch on XZ plane
sketch11 = doc.addObject("Sketcher::SketchObject", "Sketch010")
body.addObject(sketch11)
sketch11.AttachmentSupport = (doc.XZ_Plane, [""])
sketch11.MapMode = "FlatFace"
sketch11.AttachmentOffset = App.Placement(App.Vector(0, 0, -53), App.Rotation())
add_polygon(sketch11, [(14, 11), (14, 7), (11, 7), (11, 11)])  # lines 0-3
add_polygon(sketch11, [(9, 11), (9, 7), (6, 7), (6, 11)])  # lines 4-7
add_polygon(sketch11, [(4, 11), (4, 7), (1, 7), (1, 11)])  # lines 8-11
add_polygon(sketch11, [(-1, 11), (-1, 7), (-4, 7), (-4, 11)])  # lines 12-15
add_polygon(sketch11, [(-6, 11), (-6, 7), (-9, 7), (-9, 11)])  # lines 16-19
add_polygon(sketch11, [(-11, 11), (-11, 7), (-14, 7), (-14, 11)])  # lines 20-23
sketch11.addConstraint([
    Sketcher.Constraint("Vertical", 0),
    Sketcher.Constraint("Horizontal", 1),
    Sketcher.Constraint("Vertical", 2),
    Sketcher.Constraint("Horizontal", 3),
    Sketcher.Constraint("Vertical", 4),
    Sketcher.Constraint("Horizontal", 5),
    Sketcher.Constraint("Vertical", 6),
    Sketcher.Constraint("Horizontal", 7),
    Sketcher.Constraint("Vertical", 8),
    Sketcher.Constraint("Horizontal", 9),
    Sketcher.Constraint("Vertical", 10),
    Sketcher.Constraint("Horizontal", 11),
    Sketcher.Constraint("Vertical", 12),
    Sketcher.Constraint("Horizontal", 13),
    Sketcher.Constraint("Vertical", 14),
    Sketcher.Constraint("Horizontal", 15),
    Sketcher.Constraint("Vertical", 16),
    Sketcher.Constraint("Horizontal", 17),
    Sketcher.Constraint("Vertical", 18),
    Sketcher.Constraint("Horizontal", 19),
    Sketcher.Constraint("Vertical", 20),
    Sketcher.Constraint("Horizontal", 21),
    Sketcher.Constraint("Vertical", 22),
    Sketcher.Constraint("Horizontal", 23),
    Sketcher.Constraint("Symmetric", 9, 2, 12, 2, -2),
    Sketcher.Constraint("Symmetric", 11, 2, 14, 2, -2),
    Sketcher.Constraint("Symmetric", 5, 2, 16, 2, -2),
    Sketcher.Constraint("Symmetric", 7, 2, 18, 2, -2),
    Sketcher.Constraint("Symmetric", 1, 2, 20, 2, -2),
    Sketcher.Constraint("Symmetric", 3, 2, 22, 2, -2),
    Sketcher.Constraint("Horizontal", 1, 2, 4, 2),
    Sketcher.Constraint("Horizontal", 3, 2, 6, 2),
    Sketcher.Constraint("Horizontal", 5, 2, 8, 2),
    Sketcher.Constraint("Horizontal", 7, 2, 10, 2),
    Sketcher.Constraint("Equal", 3, 5),
    Sketcher.Constraint("Equal", 7, 9),
    Sketcher.Constraint("DistanceX", 1, 2, 1, 1, 3.0),
    Sketcher.Constraint("DistanceY", 0, 2, 0, 1, 4.0),
    Sketcher.Constraint("DistanceX", -1, 1, 0, 2, 14.0),
    Sketcher.Constraint("DistanceY", -1, 1, 0, 2, 7.0),
    Sketcher.Constraint("DistanceX", -1, 1, 4, 2, 9.0),
    Sketcher.Constraint("DistanceX", -1, 1, 8, 2, 4.0),
])
pocket3 = doc.addObject("PartDesign::Pocket", "Pocket002")
body.addObject(pocket3)
pocket3.Profile = sketch11
pocket3.Length = 5
pocket3.Reversed = True

# Sketch on XY plane
sketch12 = doc.addObject("Sketcher::SketchObject", "Sketch011")
body.addObject(sketch12)
sketch12.AttachmentSupport = (doc.XY_Plane, [""])
sketch12.MapMode = "FlatFace"
add_polygon(sketch12, [(-35, -22.2), (-39, -22.2), (-39, -18.2), (-40, -18.2), (-40, -23.2), (-35, -23.2)])  # lines 0-5
add_polygon(sketch12, [(-39, 22.2), (-35, 22.2), (-35, 23.2), (-40, 23.2), (-40, 18.2), (-39, 18.2)])  # lines 6-11
add_polygon(sketch12, [(16, -22.2), (12, -22.2), (12, -23.2), (17, -23.2), (17, -18.2), (16, -18.2)])  # lines 12-17
add_polygon(sketch12, [(12, 22.2), (16, 22.2), (16, 18.2), (17, 18.2), (17, 23.2), (12, 23.2)])  # lines 18-23
sketch12.addConstraint([
    Sketcher.Constraint("Horizontal", 0),
    Sketcher.Constraint("Vertical", 1),
    Sketcher.Constraint("Horizontal", 2),
    Sketcher.Constraint("Vertical", 3),
    Sketcher.Constraint("Horizontal", 4),
    Sketcher.Constraint("Vertical", 5),
    Sketcher.Constraint("Horizontal", 6),
    Sketcher.Constraint("Vertical", 7),
    Sketcher.Constraint("Horizontal", 8),
    Sketcher.Constraint("Vertical", 9),
    Sketcher.Constraint("Horizontal", 10),
    Sketcher.Constraint("Vertical", 11),
    Sketcher.Constraint("Horizontal", 12),
    Sketcher.Constraint("Vertical", 13),
    Sketcher.Constraint("Horizontal", 14),
    Sketcher.Constraint("Vertical", 15),
    Sketcher.Constraint("Horizontal", 16),
    Sketcher.Constraint("Vertical", 17),
    Sketcher.Constraint("Horizontal", 18),
    Sketcher.Constraint("Vertical", 19),
    Sketcher.Constraint("Horizontal", 20),
    Sketcher.Constraint("Vertical", 21),
    Sketcher.Constraint("Horizontal", 22),
    Sketcher.Constraint("Vertical", 23),
    Sketcher.Constraint("Symmetric", 5, 2, 6, 2, -1),
    Sketcher.Constraint("Symmetric", 3, 2, 8, 2, -1),
    Sketcher.Constraint("Symmetric", 1, 2, 10, 2, -1),
    Sketcher.Constraint("Symmetric", 17, 2, 18, 2, -1),
    Sketcher.Constraint("Symmetric", 15, 2, 20, 2, -1),
    Sketcher.Constraint("Symmetric", 13, 2, 22, 2, -1),
    Sketcher.Constraint("Horizontal", 5, 2, 12, 2),
    Sketcher.Constraint("Horizontal", 4, 2, 13, 2),
    Sketcher.Constraint("Horizontal", 2, 2, 15, 2),
    Sketcher.Constraint("Equal", 6, 12),
    Sketcher.Constraint("Equal", 8, 14),
    Sketcher.Constraint("Equal", 18, 1),
    Sketcher.Constraint("Equal", 22, 3),
    Sketcher.Constraint("DistanceX", 0, 2, 0, 1, 4.0),
    Sketcher.Constraint("DistanceX", 2, 2, 2, 1, 1.0),
    Sketcher.Constraint("DistanceX", 0, 2, -1, 1, 39.0),
    Sketcher.Constraint("DistanceX", -1, 1, 12, 2, 12.0),
    Sketcher.Constraint("DistanceY", 1, 2, 6, 2, 40.5),
])
pad9 = doc.addObject("PartDesign::Pad", "Pad008")
body.addObject(pad9)
pad9.Profile = sketch12
pad9.Length = 8

# Sketch on XY plane
sketch13 = doc.addObject("Sketcher::SketchObject", "Sketch012")
body.addObject(sketch13)
sketch13.AttachmentSupport = (doc.XY_Plane, [""])
sketch13.MapMode = "FlatFace"
add_polygon(sketch13, [(17, 18.5), (18, 18.5), (18, 22.5), (22.2, 22.5), (22.2, 23.5), (17, 23.5)])  # lines 0-5
add_polygon(sketch13, [(38.5, 22.5), (38.5, 18.5), (39.5, 18.5), (39.5, 23.5), (34.2, 23.5), (34.2, 22.5)])  # lines 6-11
add_polygon(sketch13, [(18, 1), (18, 5), (17, 5), (17, 0), (22.2, 0), (22.2, 1)])  # lines 12-17
add_polygon(sketch13, [(38.5, 5), (38.5, 1), (34.2, 1), (34.2, 0), (39.5, 0), (39.5, 5)])  # lines 18-23
sketch13.addConstraint([
    Sketcher.Constraint("Horizontal", 0),
    Sketcher.Constraint("Vertical", 1),
    Sketcher.Constraint("Horizontal", 2),
    Sketcher.Constraint("Vertical", 3),
    Sketcher.Constraint("Horizontal", 4),
    Sketcher.Constraint("Vertical", 5),
    Sketcher.Constraint("Vertical", 6),
    Sketcher.Constraint("Horizontal", 7),
    Sketcher.Constraint("Vertical", 8),
    Sketcher.Constraint("Horizontal", 9),
    Sketcher.Constraint("Vertical", 10),
    Sketcher.Constraint("Horizontal", 11),
    Sketcher.Constraint("Vertical", 12),
    Sketcher.Constraint("Horizontal", 13),
    Sketcher.Constraint("Vertical", 14),
    Sketcher.Constraint("Horizontal", 15),
    Sketcher.Constraint("Vertical", 16),
    Sketcher.Constraint("Horizontal", 17),
    Sketcher.Constraint("Vertical", 18),
    Sketcher.Constraint("Horizontal", 19),
    Sketcher.Constraint("Vertical", 20),
    Sketcher.Constraint("Horizontal", 21),
    Sketcher.Constraint("Vertical", 22),
    Sketcher.Constraint("Horizontal", 23),
    Sketcher.Constraint("PointOnObject", 14, 2, -1),
    Sketcher.Constraint("PointOnObject", 20, 2, -1),
    Sketcher.Constraint("Horizontal", 5, 2, 6, 2),
    Sketcher.Constraint("Horizontal", 4, 2, 8, 2),
    Sketcher.Constraint("Horizontal", 2, 2, 10, 2),
    Sketcher.Constraint("Horizontal", 17, 2, 18, 2),
    Sketcher.Constraint("Horizontal", 13, 2, 22, 2),
    Sketcher.Constraint("Vertical", 1, 2, 12, 2),
    Sketcher.Constraint("Vertical", 5, 2, 13, 2),
    Sketcher.Constraint("Vertical", 3, 2, 15, 2),
    Sketcher.Constraint("Vertical", 11, 2, 18, 2),
    Sketcher.Constraint("Vertical", 10, 2, 19, 2),
    Sketcher.Constraint("Vertical", 8, 2, 21, 2),
    Sketcher.Constraint("Equal", 0, 7),
    Sketcher.Constraint("Equal", 4, 9),
    Sketcher.Constraint("Equal", 23, 3),
    Sketcher.Constraint("Equal", 6, 12),
    Sketcher.Constraint("Equal", 8, 14),
    Sketcher.Constraint("DistanceX", 0, 1, 0, 2, 1.0),
    Sketcher.Constraint("DistanceY", 1, 1, 1, 2, 4.0),
    Sketcher.Constraint("DistanceX", -1, 1, 0, 2, 18.0),
    Sketcher.Constraint("DistanceX", 3, 2, 9, 2, 12.0),
    Sketcher.Constraint("DistanceX", 2, 1, 2, 2, 4.25),
    Sketcher.Constraint("DistanceY", -1, 1, 0, 2, 18.5),
])
pad10 = doc.addObject("PartDesign::Pad", "Pad009")
body.addObject(pad10)
pad10.Profile = sketch13
pad10.Length = 8

# Sketch on XY plane
sketch14 = doc.addObject("Sketcher::SketchObject", "Sketch013")
body.addObject(sketch14)
sketch14.AttachmentSupport = (doc.XY_Plane, [""])
sketch14.MapMode = "FlatFace"
add_polygon(sketch14, [(24, -5), (27, -5), (27, -4), (23, -4), (23, -8), (24, -8)])  # lines 0-5
add_polygon(sketch14, [(33, -5), (36, -5), (36, -8), (37, -8), (37, -4), (33, -4)])  # lines 6-11
add_polygon(sketch14, [(24, -22), (24, -19), (23, -19), (23, -23), (27, -23), (27, -22)])  # lines 12-17
add_polygon(sketch14, [(36, -19), (36, -22), (33, -22), (33, -23), (37, -23), (37, -19)])  # lines 18-23
sketch14.addConstraint([
    Sketcher.Constraint("Horizontal", 0),
    Sketcher.Constraint("Vertical", 1),
    Sketcher.Constraint("Horizontal", 2),
    Sketcher.Constraint("Vertical", 3),
    Sketcher.Constraint("Horizontal", 4),
    Sketcher.Constraint("Vertical", 5),
    Sketcher.Constraint("Horizontal", 6),
    Sketcher.Constraint("Vertical", 7),
    Sketcher.Constraint("Horizontal", 8),
    Sketcher.Constraint("Vertical", 9),
    Sketcher.Constraint("Horizontal", 10),
    Sketcher.Constraint("Vertical", 11),
    Sketcher.Constraint("Vertical", 12),
    Sketcher.Constraint("Horizontal", 13),
    Sketcher.Constraint("Vertical", 14),
    Sketcher.Constraint("Horizontal", 15),
    Sketcher.Constraint("Vertical", 16),
    Sketcher.Constraint("Horizontal", 17),
    Sketcher.Constraint("Vertical", 18),
    Sketcher.Constraint("Horizontal", 19),
    Sketcher.Constraint("Vertical", 20),
    Sketcher.Constraint("Horizontal", 21),
    Sketcher.Constraint("Vertical", 22),
    Sketcher.Constraint("Horizontal", 23),
    Sketcher.Constraint("Horizontal", 5, 2, 6, 2),
    Sketcher.Constraint("Horizontal", 4, 2, 7, 2),
    Sketcher.Constraint("Horizontal", 2, 2, 9, 2),
    Sketcher.Constraint("Horizontal", 17, 2, 18, 2),
    Sketcher.Constraint("Horizontal", 15, 2, 20, 2),
    Sketcher.Constraint("Horizontal", 13, 2, 22, 2),
    Sketcher.Constraint("Vertical", 5, 2, 12, 2),
    Sketcher.Constraint("Vertical", 3, 2, 13, 2),
    Sketcher.Constraint("Vertical", 1, 2, 15, 2),
    Sketcher.Constraint("Vertical", 7, 2, 18, 2),
    Sketcher.Constraint("Vertical", 11, 2, 19, 2),
    Sketcher.Constraint("Vertical", 9, 2, 21, 2),
    Sketcher.Constraint("Equal", 0, 6),
    Sketcher.Constraint("Equal", 4, 8),
    Sketcher.Constraint("Equal", 23, 1),
    Sketcher.Constraint("Equal", 21, 3),
    Sketcher.Constraint("Equal", 7, 12),
    Sketcher.Constraint("Equal", 9, 14),
    Sketcher.Constraint("DistanceX", 0, 1, 0, 2, 3.0),
    Sketcher.Constraint("DistanceX", 2, 2, 2, 1, 4.0),
    Sketcher.Constraint("DistanceX", -1, 1, 0, 2, 27.0),
    Sketcher.Constraint("DistanceY", 0, 2, -1, 1, 5.0),
    Sketcher.Constraint("DistanceX", -1, 1, 6, 2, 36.0),
    Sketcher.Constraint("DistanceY", 12, 2, -1, 1, 19.0),
])
pad11 = doc.addObject("PartDesign::Pad", "Pad010")
body.addObject(pad11)
pad11.Profile = sketch14
pad11.Length = 8
body2 = doc.addObject("PartDesign::Body", "Body001")
doc.recompute()

body.Placement = App.Placement(App.Vector(-108, 0, 0), App.Rotation(App.Vector(0, 0, 1), 0))
boolean = doc.addObject("PartDesign::Boolean", "Boolean")
body2.addObject(boolean)
boolean.Type = "Fuse"
boolean.addObjects([body])

doc.recompute()
